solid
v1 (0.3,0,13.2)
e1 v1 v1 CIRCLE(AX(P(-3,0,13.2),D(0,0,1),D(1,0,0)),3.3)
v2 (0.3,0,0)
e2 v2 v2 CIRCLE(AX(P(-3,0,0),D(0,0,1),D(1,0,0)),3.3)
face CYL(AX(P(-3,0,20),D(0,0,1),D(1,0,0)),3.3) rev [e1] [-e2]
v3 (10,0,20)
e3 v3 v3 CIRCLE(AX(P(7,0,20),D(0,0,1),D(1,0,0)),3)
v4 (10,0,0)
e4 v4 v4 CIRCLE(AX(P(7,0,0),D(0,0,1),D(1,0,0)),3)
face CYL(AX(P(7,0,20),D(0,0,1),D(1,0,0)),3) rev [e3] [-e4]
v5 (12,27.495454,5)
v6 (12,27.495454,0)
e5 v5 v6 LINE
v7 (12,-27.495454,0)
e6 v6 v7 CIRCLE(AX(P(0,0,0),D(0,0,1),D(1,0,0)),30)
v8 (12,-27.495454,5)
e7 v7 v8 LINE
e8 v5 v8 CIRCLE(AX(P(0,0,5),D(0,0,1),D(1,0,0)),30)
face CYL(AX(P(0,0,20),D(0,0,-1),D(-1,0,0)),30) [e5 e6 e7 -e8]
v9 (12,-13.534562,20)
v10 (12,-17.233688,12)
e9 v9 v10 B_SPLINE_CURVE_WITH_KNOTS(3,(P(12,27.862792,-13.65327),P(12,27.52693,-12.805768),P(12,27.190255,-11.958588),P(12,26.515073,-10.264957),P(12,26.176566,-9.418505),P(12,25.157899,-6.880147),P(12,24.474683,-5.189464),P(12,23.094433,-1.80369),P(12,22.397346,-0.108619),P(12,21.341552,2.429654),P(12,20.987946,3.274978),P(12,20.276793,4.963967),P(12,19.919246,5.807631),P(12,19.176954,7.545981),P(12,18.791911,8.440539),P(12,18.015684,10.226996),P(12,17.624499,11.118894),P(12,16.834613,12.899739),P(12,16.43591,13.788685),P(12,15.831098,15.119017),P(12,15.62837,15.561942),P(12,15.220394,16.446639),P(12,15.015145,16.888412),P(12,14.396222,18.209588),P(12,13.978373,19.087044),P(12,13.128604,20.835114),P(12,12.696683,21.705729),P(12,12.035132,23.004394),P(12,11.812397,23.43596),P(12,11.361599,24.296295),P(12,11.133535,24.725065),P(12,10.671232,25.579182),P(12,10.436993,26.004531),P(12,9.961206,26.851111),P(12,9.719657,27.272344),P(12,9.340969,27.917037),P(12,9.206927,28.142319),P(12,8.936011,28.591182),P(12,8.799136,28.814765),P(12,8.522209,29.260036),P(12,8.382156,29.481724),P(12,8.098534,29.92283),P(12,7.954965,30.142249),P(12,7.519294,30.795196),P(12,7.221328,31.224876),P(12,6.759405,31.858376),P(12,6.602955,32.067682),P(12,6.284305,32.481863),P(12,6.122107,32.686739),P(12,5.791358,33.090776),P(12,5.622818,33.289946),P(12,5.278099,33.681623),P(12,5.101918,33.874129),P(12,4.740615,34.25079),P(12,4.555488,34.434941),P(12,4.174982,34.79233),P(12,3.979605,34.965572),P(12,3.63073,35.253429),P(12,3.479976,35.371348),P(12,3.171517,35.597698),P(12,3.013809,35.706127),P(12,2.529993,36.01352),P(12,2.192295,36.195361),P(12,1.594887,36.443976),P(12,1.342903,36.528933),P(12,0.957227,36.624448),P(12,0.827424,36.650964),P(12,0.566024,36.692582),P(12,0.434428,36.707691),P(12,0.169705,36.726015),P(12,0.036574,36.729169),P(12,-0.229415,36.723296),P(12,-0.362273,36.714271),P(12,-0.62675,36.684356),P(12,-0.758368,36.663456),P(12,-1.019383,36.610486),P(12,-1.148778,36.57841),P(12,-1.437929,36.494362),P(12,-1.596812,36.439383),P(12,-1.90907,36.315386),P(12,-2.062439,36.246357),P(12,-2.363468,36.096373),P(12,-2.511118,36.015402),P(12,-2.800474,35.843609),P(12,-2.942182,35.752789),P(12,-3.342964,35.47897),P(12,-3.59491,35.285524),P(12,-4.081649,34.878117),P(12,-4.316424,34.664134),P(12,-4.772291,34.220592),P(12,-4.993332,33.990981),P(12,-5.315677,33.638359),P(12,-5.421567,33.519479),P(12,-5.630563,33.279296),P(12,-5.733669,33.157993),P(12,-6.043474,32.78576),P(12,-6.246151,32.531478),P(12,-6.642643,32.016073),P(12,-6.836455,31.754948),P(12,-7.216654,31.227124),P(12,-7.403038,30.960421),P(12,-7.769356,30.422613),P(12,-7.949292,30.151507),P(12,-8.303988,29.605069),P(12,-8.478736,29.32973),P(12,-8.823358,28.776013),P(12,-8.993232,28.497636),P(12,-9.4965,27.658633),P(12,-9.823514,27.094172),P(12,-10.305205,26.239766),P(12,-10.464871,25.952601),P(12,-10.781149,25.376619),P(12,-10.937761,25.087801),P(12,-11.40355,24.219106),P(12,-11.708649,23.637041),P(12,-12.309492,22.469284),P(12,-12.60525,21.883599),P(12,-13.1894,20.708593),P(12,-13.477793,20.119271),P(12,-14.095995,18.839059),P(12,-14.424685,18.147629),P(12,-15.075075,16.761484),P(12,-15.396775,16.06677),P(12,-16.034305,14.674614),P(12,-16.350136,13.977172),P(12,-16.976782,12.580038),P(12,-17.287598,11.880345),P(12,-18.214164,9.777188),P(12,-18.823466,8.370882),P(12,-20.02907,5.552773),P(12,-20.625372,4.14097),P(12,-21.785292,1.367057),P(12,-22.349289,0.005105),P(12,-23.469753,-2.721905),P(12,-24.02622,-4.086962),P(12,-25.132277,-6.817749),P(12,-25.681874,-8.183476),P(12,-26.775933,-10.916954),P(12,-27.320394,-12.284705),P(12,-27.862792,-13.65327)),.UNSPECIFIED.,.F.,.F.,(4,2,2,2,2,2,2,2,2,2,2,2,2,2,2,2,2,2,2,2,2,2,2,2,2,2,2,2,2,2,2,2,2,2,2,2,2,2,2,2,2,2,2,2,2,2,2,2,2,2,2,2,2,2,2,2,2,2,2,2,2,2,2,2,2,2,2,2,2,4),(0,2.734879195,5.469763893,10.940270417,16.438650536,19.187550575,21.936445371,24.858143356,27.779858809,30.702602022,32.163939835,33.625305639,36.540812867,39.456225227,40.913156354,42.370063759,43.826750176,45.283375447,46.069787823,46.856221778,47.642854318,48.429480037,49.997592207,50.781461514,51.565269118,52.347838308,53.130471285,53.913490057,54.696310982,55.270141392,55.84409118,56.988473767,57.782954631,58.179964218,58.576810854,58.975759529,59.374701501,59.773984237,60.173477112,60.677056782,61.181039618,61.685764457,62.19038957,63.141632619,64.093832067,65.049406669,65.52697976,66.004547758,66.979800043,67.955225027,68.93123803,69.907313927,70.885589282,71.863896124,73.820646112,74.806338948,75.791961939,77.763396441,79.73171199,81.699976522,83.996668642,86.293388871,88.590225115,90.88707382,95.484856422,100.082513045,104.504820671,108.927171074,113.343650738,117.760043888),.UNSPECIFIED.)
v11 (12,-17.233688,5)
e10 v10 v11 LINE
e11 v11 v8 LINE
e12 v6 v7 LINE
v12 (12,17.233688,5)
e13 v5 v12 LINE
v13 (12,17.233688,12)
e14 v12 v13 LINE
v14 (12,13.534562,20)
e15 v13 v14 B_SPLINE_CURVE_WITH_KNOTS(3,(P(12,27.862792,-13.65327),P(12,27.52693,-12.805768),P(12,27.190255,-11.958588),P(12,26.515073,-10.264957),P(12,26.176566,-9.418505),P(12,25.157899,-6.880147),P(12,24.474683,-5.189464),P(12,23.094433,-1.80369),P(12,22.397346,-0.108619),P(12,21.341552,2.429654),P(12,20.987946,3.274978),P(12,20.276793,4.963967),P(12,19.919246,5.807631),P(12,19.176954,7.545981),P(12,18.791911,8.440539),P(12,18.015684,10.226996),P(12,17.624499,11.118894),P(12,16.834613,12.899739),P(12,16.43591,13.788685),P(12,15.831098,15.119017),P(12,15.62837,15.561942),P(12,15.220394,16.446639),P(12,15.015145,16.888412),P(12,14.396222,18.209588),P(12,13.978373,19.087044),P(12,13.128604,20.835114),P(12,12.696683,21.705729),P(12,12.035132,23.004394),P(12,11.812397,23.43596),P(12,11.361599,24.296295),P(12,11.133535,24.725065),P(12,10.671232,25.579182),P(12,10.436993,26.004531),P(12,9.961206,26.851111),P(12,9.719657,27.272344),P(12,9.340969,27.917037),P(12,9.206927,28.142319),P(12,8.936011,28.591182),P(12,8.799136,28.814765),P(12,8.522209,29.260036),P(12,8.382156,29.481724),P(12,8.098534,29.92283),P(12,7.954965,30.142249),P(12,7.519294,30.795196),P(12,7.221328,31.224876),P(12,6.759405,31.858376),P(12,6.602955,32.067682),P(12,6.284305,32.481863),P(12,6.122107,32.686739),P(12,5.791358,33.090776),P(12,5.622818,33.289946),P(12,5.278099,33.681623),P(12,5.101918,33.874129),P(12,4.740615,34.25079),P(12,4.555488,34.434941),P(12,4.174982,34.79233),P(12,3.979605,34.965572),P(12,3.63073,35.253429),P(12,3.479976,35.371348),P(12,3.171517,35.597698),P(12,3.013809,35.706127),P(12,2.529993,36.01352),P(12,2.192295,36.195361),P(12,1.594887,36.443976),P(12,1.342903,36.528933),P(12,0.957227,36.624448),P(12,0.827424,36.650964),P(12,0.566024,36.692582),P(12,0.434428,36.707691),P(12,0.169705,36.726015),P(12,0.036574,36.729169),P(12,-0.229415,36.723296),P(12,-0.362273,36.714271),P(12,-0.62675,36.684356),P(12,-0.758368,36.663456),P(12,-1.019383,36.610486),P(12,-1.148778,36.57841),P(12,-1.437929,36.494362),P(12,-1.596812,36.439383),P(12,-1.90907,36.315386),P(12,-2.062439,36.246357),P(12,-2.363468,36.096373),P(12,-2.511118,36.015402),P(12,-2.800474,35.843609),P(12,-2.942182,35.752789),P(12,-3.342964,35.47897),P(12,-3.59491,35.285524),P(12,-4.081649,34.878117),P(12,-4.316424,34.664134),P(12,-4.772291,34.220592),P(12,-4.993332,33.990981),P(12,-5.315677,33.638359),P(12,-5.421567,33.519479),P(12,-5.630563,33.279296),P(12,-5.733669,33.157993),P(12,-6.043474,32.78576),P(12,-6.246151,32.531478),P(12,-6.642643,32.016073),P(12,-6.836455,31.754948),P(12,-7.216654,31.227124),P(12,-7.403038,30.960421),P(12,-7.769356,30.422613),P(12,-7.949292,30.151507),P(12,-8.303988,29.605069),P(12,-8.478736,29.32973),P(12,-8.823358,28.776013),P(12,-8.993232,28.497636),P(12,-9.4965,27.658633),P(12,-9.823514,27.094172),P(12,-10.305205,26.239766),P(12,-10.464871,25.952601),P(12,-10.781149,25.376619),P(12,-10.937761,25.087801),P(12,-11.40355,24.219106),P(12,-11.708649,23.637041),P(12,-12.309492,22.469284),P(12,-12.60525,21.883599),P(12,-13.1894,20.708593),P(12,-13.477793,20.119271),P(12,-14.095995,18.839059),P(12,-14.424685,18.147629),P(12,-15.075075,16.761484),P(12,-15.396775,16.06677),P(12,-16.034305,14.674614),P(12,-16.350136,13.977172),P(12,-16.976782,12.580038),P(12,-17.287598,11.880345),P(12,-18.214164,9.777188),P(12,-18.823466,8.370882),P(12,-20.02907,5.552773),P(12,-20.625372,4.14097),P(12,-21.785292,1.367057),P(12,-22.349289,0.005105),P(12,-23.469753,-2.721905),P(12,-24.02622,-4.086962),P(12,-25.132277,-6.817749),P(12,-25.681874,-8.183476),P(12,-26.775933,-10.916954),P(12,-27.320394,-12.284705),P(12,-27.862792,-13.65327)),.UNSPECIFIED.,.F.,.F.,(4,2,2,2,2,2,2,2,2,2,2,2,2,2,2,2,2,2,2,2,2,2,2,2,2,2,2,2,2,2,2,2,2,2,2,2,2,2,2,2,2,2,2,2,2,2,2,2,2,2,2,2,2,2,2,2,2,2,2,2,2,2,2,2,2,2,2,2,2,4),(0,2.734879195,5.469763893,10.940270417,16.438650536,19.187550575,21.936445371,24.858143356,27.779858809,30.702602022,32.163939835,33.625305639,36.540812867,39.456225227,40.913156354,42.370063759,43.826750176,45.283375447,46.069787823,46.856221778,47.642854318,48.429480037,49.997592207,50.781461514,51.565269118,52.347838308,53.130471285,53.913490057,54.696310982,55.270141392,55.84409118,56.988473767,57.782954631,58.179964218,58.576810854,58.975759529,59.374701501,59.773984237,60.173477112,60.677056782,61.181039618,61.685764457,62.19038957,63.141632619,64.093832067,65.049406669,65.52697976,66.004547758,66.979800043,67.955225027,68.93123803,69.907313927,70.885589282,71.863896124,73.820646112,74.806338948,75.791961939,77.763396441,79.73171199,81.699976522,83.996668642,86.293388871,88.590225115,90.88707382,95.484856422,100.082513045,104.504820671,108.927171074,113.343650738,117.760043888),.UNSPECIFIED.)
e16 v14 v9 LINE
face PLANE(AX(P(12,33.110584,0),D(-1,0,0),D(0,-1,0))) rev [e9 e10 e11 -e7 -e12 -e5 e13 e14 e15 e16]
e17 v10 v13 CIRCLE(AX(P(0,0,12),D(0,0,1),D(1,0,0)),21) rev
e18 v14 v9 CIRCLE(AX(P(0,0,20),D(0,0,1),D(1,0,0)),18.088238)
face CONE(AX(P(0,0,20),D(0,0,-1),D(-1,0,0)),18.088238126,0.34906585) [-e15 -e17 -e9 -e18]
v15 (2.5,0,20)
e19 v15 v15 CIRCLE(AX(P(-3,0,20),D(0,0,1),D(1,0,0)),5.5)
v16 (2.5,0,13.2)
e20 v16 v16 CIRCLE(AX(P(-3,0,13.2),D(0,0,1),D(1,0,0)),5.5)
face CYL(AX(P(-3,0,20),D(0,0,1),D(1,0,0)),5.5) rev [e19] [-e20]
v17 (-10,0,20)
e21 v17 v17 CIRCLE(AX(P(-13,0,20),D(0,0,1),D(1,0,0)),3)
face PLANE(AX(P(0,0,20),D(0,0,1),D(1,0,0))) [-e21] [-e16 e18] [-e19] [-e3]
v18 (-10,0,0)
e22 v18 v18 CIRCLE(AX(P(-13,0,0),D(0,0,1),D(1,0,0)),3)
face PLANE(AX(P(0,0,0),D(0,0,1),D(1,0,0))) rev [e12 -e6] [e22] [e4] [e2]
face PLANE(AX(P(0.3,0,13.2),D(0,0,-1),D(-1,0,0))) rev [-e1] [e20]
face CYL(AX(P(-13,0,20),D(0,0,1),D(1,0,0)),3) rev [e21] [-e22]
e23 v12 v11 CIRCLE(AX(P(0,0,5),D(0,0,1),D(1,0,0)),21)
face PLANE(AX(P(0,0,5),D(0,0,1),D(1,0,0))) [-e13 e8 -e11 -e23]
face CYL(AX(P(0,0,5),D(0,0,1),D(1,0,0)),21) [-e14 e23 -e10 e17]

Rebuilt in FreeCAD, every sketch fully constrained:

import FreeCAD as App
import Part
import Sketcher

V = App.Vector
Q = App.Units.Quantity


def edges_at(feature, points):
    """Names of the edges that pass closest to the given points."""
    edges = feature.Shape.Edges
    near = lambda p: min(range(len(edges)), key=lambda i: edges[i].distToShape(Part.Vertex(*p))[0])
    return sorted({f"Edge{near(p) + 1}" for p in points})


def add_polygon(sketch, points):
    """Adds a closed chain of lines whose ends are joined by coincident constraints."""
    first, n = sketch.GeometryCount, len(points)
    for a, b in zip(points, points[1:] + points[:1]):
        sketch.addGeometry(Part.LineSegment(App.Vector(*a, 0), App.Vector(*b, 0)), False)
    for i in range(n):
        sketch.addConstraint(Sketcher.Constraint("Coincident", first + i, 2, first + (i + 1) % n, 1))

doc = App.newDocument("Part")
body = doc.addObject("PartDesign::Body", "Body")

# Sketch on XY plane
sketch1 = doc.addObject("Sketcher::SketchObject", "Sketch")
body.addObject(sketch1)
sketch1.AttachmentSupport = (doc.XY_Plane, [""])
sketch1.MapMode = "FlatFace"
sketch1.addGeometry(Part.Circle(V(0, 0, 0), V(0, 0, 1), 30), False)
sketch1.addConstraint([
    Sketcher.Constraint("Coincident", 0, 3, -1, 1),
    Sketcher.Constraint("Diameter", 0, Q("60 mm")),
])
pad1 = doc.addObject("PartDesign::Pad", "Pad")
body.addObject(pad1)
pad1.Profile = sketch1
pad1.Length = 20

# Sketch on XY plane
sketch2 = doc.addObject("Sketcher::SketchObject", "Sketch001")
body.addObject(sketch2)
sketch2.AttachmentSupport = (doc.XY_Plane, [""])
sketch2.MapMode = "FlatFace"
sketch2.AttachmentOffset = App.Placement(V(0, 0, 20), App.Rotation())
sketch2.addGeometry([
    Part.Circle(V(-13, 0, 0), V(0, 0, 1), 3),
    Part.Circle(V(7, 0, 0), V(0, 0, 1), 3),
], False)
sketch2.addConstraint([
    Sketcher.Constraint("Equal", 0, 1),
    Sketcher.Constraint("PointOnObject", 0, 3, -1),
    Sketcher.Constraint("PointOnObject", 1, 3, -1),
    Sketcher.Constraint("Diameter", 0, Q("6 mm")),
    Sketcher.Constraint("DistanceX", 0, 3, -1, 1, Q("13 mm")),
    Sketcher.Constraint("DistanceX", -1, 1, 1, 3, Q("7 mm")),
])
doc.recompute()
hole = doc.addObject("PartDesign::Hole", "Hole")
body.addObject(hole)
hole.Profile = sketch2
hole.ThreadType = "None"
hole.Diameter = 6
hole.DepthType = "Dimension"
hole.Depth = 20
hole.DrillPoint = "Angled"
hole.DrillPointAngle = 118

# Sketch on XY plane
sketch3 = doc.addObject("Sketcher::SketchObject", "Sketch002")
body.addObject(sketch3)
sketch3.AttachmentSupport = (doc.XY_Plane, [""])
sketch3.MapMode = "FlatFace"
sketch3.AttachmentOffset = App.Placement(V(0, 0, 20), App.Rotation())
sketch3.addGeometry(Part.Circle(V(-3, 0, 0), V(0, 0, 1), 3.3), False)
sketch3.addConstraint([
    Sketcher.Constraint("PointOnObject", 0, 3, -1),
    Sketcher.Constraint("Diameter", 0, Q("6.6 mm")),
    Sketcher.Constraint("DistanceX", 0, 3, -1, 1, Q("3 mm")),
])
doc.recompute()
hole2 = doc.addObject("PartDesign::Hole", "Hole001")
body.addObject(hole2)
hole2.Profile = sketch3
hole2.ThreadType = "None"
hole2.Diameter = 6.6
hole2.DepthType = "Dimension"
hole2.Depth = 20
hole2.DrillPoint = "Angled"
hole2.DrillPointAngle = 118
hole2.HoleCutType = "Counterbore"
hole2.HoleCutDiameter = 11
hole2.HoleCutDepth = 6.8

# Sketch on XY plane
sketch4 = doc.addObject("Sketcher::SketchObject", "Sketch003")
body.addObject(sketch4)
sketch4.AttachmentSupport = (doc.XY_Plane, [""])
sketch4.MapMode = "FlatFace"
sketch4.AttachmentOffset = App.Placement(V(0, 0, 20), App.Rotation())
add_polygon(sketch4, [(-39.718, 39.718), (-39.718, -39.718), (39.718, -39.718), (39.718, 39.718)])  # lines 0-3
sketch4.addGeometry(Part.Circle(V(0, 0, 0), V(0, 0, 1), 21), False)  # 4
sketch4.addConstraint([
    Sketcher.Constraint("Vertical", 0),
    Sketcher.Constraint("Horizontal", 1),
    Sketcher.Constraint("Vertical", 2),
    Sketcher.Constraint("Horizontal", 3),
    Sketcher.Constraint("Coincident", 4, 3, -1, 1),
    Sketcher.Constraint("Symmetric", 0, 2, 2, 2, -1, 1),
    Sketcher.Constraint("Equal", 3, 0),
    Sketcher.Constraint("Diameter", 4, Q("42 mm")),
    Sketcher.Constraint("DistanceX", 1, 1, 1, 2, Q("79.436 mm")),
])
pocket1 = doc.addObject("PartDesign::Pocket", "Pocket")
body.addObject(pocket1)
pocket1.Profile = sketch4
pocket1.Length = 15
doc.recompute()

chamfer = doc.addObject("PartDesign::Chamfer", "Chamfer")
body.addObject(chamfer)
chamfer.Base = (pocket1, edges_at(pocket1, [(-21, 0, 20)]))
chamfer.ChamferType = "Two distances"
chamfer.Size = 8
chamfer.Size2 = 2.911762

# Sketch on XY plane
sketch5 = doc.addObject("Sketcher::SketchObject", "Sketch004")
body.addObject(sketch5)
sketch5.AttachmentSupport = (doc.XY_Plane, [""])
sketch5.MapMode = "FlatFace"
sketch5.AttachmentOffset = App.Placement(V(0, 0, 20), App.Rotation())
add_polygon(sketch5, [(12, 33.110584), (12, -35.295808), (47.972327, -35.295808), (47.972327, 33.110584)])  # lines 0-3
sketch5.addConstraint([
    Sketcher.Constraint("Vertical", 0),
    Sketcher.Constraint("Horizontal", 1),
    Sketcher.Constraint("Vertical", 2),
    Sketcher.Constraint("Horizontal", 3),
    Sketcher.Constraint("DistanceX", -1, 1, 0, 2, Q("12 mm")),
    Sketcher.Constraint("DistanceX", 1, 1, 1, 2, Q("35.972327 mm")),
    Sketcher.Constraint("DistanceY", 0, 2, 0, 1, Q("68.406393 mm")),
    Sketcher.Constraint("DistanceY", 0, 2, -1, 1, Q("35.295808 mm")),
])
pocket2 = doc.addObject("PartDesign::Pocket", "Pocket001")
body.addObject(pocket2)
pocket2.Profile = sketch5
pocket2.Type = "ThroughAll"

doc.recompute()
